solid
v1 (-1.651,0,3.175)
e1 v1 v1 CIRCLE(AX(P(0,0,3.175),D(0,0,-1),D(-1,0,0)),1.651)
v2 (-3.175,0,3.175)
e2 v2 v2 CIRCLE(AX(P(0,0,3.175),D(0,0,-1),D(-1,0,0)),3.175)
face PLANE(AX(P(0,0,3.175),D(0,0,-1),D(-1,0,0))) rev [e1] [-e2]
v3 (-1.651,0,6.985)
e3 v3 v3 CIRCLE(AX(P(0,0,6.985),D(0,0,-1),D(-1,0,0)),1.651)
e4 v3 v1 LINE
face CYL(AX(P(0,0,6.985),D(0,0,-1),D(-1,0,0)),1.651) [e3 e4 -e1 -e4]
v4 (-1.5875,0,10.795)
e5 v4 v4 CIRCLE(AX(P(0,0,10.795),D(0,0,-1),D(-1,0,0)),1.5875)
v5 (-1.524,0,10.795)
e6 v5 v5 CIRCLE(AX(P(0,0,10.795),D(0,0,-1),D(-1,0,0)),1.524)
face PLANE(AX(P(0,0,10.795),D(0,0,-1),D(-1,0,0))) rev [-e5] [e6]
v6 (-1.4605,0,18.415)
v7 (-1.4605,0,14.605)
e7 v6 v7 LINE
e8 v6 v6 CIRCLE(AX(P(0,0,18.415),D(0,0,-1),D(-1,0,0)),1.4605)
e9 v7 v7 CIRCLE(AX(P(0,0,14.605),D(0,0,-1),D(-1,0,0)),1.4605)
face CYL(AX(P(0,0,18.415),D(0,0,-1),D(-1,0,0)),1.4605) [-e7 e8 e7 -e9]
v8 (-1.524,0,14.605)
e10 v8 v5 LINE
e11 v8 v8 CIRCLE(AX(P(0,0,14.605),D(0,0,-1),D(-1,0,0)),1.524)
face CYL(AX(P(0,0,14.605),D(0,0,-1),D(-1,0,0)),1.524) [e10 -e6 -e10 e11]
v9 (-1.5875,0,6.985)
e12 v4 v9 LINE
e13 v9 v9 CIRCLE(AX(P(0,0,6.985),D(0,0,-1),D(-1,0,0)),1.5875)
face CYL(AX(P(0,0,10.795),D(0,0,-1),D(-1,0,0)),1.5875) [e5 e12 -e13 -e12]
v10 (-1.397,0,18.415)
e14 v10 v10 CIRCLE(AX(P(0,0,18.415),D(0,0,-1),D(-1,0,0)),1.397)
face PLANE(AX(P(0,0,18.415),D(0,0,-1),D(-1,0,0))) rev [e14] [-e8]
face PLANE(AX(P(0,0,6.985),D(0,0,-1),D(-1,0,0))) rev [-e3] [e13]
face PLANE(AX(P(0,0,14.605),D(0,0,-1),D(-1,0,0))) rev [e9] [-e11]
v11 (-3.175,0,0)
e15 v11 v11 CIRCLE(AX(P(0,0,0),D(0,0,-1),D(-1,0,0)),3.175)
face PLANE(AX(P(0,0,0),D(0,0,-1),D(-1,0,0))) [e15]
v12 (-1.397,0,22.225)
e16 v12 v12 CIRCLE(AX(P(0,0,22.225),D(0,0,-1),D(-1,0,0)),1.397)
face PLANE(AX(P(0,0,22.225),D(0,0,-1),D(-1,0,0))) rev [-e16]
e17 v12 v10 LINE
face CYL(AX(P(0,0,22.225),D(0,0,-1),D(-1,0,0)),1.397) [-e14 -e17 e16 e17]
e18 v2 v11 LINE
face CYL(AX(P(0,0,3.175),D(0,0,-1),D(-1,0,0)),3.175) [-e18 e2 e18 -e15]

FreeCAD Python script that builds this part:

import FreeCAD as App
import Part
import Sketcher
Q = App.Units.Quantity


def add_polygon(sketch, points):
    """Adds a closed chain of lines whose ends are joined by coincident constraints."""
    first, n = sketch.GeometryCount, len(points)
    for a, b in zip(points, points[1:] + points[:1]):
        sketch.addGeometry(Part.LineSegment(App.Vector(*a, 0), App.Vector(*b, 0)), False)
    for i in range(n):
        sketch.addConstraint(Sketcher.Constraint("Coincident", first + i, 2, first + (i + 1) % n, 1))

doc = App.newDocument("Part")
body = doc.addObject("PartDesign::Body", "Body")

# Sketch on XZ plane
sketch1 = doc.addObject("Sketcher::SketchObject", "Sketch")
body.addObject(sketch1)
sketch1.AttachmentSupport = (doc.XZ_Plane, [""])
sketch1.MapMode = "FlatFace"
add_polygon(sketch1, [(-1.52, 10.79), (-1.59, 10.79), (-1.59, 6.99), (-1.65, 6.99), (-1.65, 3.17), (-3.17, 3.17), (-3.17, 0), (0, 0), (0, 22.23), (-1.4, 22.23), (-1.4, 18.41), (-1.46, 18.41), (-1.46, 14.61), (-1.52, 14.61)])  # lines 0-13
sketch1.addConstraint([
    Sketcher.Constraint("Horizontal", 0),
    Sketcher.Constraint("Vertical", 1),
    Sketcher.Constraint("Horizontal", 2),
    Sketcher.Constraint("Vertical", 3),
    Sketcher.Constraint("Horizontal", 4),
    Sketcher.Constraint("Vertical", 5),
    Sketcher.Constraint("Horizontal", 6),
    Sketcher.Constraint("Vertical", 7),
    Sketcher.Constraint("Horizontal", 8),
    Sketcher.Constraint("Vertical", 9),
    Sketcher.Constraint("Horizontal", 10),
    Sketcher.Constraint("Vertical", 11),
    Sketcher.Constraint("Horizontal", 12),
    Sketcher.Constraint("Vertical", 13),
    Sketcher.Constraint("Coincident", 6, 2, -1, 1),
    Sketcher.Constraint("Equal", 0, 2),
    Sketcher.Constraint("Equal", 2, 10),
    Sketcher.Constraint("Equal", 10, 12),
    Sketcher.Constraint("Equal", 1, 3),
    Sketcher.Constraint("Equal", 6, 5),
    Sketcher.Constraint("Equal", 3, 9),
    Sketcher.Constraint("Equal", 9, 11),
    Sketcher.Constraint("Equal", 11, 13),
    Sketcher.Constraint("DistanceX", 4, 2, 4, 1, Q("0.06 in")),
    Sketcher.Constraint("DistanceY", 1, 2, 1, 1, Q("0.15 in")),
    Sketcher.Constraint("DistanceX", 6, 1, 6, 2, Q("0.125 in")),
    Sketcher.Constraint("DistanceX", 8, 2, 8, 1, Q("0.055 in")),
])
revolution = doc.addObject("PartDesign::Revolution", "Revolution")
body.addObject(revolution)
revolution.Profile = sketch1
revolution.ReferenceAxis = (sketch1, ["V_Axis"])
revolution.Angle = 360

doc.recompute()
